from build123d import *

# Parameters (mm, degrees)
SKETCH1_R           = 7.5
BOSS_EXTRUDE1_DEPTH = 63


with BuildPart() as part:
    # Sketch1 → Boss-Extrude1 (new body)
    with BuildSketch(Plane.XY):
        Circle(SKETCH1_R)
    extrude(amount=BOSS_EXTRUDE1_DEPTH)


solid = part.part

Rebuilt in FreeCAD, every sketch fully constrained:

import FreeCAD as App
import Part
import Sketcher
Q = App.Units.Quantity

doc = App.newDocument("Part")
params = doc.addObject("Spreadsheet::Sheet", "Params")
for row, (alias, value) in enumerate([
    ("sketch1_diameter", "15 mm"),
    ("pad1_length", "63 mm"),
], start=1):
    params.set(f"A{row}", alias)
    params.set(f"B{row}", "=" + value)
    params.setAlias(f"B{row}", alias)

body = doc.addObject("PartDesign::Body", "Body")

sketch1 = body.newObject("Sketcher::SketchObject", "Sketch")
sketch1.AttachmentSupport = (doc.getObject("XY_Plane"), [""])
sketch1.MapMode = "FlatFace"
sketch1.addGeometry(Part.Circle(App.Vector(0, 0, 0), App.Vector(0, 0, 1), 8), False)
sketch1.addConstraint([
    Sketcher.Constraint("Coincident", 0, 3, -1, 1),
    Sketcher.Constraint("Diameter", 0, Q("15 mm")),
])
sketch1.setExpression("Constraints[1]", "Params.sketch1_diameter")
pad1 = body.newObject("PartDesign::Pad", "Pad")
pad1.Profile = sketch1
pad1.setExpression("Length", "Params.pad1_length")

doc.recompute()
